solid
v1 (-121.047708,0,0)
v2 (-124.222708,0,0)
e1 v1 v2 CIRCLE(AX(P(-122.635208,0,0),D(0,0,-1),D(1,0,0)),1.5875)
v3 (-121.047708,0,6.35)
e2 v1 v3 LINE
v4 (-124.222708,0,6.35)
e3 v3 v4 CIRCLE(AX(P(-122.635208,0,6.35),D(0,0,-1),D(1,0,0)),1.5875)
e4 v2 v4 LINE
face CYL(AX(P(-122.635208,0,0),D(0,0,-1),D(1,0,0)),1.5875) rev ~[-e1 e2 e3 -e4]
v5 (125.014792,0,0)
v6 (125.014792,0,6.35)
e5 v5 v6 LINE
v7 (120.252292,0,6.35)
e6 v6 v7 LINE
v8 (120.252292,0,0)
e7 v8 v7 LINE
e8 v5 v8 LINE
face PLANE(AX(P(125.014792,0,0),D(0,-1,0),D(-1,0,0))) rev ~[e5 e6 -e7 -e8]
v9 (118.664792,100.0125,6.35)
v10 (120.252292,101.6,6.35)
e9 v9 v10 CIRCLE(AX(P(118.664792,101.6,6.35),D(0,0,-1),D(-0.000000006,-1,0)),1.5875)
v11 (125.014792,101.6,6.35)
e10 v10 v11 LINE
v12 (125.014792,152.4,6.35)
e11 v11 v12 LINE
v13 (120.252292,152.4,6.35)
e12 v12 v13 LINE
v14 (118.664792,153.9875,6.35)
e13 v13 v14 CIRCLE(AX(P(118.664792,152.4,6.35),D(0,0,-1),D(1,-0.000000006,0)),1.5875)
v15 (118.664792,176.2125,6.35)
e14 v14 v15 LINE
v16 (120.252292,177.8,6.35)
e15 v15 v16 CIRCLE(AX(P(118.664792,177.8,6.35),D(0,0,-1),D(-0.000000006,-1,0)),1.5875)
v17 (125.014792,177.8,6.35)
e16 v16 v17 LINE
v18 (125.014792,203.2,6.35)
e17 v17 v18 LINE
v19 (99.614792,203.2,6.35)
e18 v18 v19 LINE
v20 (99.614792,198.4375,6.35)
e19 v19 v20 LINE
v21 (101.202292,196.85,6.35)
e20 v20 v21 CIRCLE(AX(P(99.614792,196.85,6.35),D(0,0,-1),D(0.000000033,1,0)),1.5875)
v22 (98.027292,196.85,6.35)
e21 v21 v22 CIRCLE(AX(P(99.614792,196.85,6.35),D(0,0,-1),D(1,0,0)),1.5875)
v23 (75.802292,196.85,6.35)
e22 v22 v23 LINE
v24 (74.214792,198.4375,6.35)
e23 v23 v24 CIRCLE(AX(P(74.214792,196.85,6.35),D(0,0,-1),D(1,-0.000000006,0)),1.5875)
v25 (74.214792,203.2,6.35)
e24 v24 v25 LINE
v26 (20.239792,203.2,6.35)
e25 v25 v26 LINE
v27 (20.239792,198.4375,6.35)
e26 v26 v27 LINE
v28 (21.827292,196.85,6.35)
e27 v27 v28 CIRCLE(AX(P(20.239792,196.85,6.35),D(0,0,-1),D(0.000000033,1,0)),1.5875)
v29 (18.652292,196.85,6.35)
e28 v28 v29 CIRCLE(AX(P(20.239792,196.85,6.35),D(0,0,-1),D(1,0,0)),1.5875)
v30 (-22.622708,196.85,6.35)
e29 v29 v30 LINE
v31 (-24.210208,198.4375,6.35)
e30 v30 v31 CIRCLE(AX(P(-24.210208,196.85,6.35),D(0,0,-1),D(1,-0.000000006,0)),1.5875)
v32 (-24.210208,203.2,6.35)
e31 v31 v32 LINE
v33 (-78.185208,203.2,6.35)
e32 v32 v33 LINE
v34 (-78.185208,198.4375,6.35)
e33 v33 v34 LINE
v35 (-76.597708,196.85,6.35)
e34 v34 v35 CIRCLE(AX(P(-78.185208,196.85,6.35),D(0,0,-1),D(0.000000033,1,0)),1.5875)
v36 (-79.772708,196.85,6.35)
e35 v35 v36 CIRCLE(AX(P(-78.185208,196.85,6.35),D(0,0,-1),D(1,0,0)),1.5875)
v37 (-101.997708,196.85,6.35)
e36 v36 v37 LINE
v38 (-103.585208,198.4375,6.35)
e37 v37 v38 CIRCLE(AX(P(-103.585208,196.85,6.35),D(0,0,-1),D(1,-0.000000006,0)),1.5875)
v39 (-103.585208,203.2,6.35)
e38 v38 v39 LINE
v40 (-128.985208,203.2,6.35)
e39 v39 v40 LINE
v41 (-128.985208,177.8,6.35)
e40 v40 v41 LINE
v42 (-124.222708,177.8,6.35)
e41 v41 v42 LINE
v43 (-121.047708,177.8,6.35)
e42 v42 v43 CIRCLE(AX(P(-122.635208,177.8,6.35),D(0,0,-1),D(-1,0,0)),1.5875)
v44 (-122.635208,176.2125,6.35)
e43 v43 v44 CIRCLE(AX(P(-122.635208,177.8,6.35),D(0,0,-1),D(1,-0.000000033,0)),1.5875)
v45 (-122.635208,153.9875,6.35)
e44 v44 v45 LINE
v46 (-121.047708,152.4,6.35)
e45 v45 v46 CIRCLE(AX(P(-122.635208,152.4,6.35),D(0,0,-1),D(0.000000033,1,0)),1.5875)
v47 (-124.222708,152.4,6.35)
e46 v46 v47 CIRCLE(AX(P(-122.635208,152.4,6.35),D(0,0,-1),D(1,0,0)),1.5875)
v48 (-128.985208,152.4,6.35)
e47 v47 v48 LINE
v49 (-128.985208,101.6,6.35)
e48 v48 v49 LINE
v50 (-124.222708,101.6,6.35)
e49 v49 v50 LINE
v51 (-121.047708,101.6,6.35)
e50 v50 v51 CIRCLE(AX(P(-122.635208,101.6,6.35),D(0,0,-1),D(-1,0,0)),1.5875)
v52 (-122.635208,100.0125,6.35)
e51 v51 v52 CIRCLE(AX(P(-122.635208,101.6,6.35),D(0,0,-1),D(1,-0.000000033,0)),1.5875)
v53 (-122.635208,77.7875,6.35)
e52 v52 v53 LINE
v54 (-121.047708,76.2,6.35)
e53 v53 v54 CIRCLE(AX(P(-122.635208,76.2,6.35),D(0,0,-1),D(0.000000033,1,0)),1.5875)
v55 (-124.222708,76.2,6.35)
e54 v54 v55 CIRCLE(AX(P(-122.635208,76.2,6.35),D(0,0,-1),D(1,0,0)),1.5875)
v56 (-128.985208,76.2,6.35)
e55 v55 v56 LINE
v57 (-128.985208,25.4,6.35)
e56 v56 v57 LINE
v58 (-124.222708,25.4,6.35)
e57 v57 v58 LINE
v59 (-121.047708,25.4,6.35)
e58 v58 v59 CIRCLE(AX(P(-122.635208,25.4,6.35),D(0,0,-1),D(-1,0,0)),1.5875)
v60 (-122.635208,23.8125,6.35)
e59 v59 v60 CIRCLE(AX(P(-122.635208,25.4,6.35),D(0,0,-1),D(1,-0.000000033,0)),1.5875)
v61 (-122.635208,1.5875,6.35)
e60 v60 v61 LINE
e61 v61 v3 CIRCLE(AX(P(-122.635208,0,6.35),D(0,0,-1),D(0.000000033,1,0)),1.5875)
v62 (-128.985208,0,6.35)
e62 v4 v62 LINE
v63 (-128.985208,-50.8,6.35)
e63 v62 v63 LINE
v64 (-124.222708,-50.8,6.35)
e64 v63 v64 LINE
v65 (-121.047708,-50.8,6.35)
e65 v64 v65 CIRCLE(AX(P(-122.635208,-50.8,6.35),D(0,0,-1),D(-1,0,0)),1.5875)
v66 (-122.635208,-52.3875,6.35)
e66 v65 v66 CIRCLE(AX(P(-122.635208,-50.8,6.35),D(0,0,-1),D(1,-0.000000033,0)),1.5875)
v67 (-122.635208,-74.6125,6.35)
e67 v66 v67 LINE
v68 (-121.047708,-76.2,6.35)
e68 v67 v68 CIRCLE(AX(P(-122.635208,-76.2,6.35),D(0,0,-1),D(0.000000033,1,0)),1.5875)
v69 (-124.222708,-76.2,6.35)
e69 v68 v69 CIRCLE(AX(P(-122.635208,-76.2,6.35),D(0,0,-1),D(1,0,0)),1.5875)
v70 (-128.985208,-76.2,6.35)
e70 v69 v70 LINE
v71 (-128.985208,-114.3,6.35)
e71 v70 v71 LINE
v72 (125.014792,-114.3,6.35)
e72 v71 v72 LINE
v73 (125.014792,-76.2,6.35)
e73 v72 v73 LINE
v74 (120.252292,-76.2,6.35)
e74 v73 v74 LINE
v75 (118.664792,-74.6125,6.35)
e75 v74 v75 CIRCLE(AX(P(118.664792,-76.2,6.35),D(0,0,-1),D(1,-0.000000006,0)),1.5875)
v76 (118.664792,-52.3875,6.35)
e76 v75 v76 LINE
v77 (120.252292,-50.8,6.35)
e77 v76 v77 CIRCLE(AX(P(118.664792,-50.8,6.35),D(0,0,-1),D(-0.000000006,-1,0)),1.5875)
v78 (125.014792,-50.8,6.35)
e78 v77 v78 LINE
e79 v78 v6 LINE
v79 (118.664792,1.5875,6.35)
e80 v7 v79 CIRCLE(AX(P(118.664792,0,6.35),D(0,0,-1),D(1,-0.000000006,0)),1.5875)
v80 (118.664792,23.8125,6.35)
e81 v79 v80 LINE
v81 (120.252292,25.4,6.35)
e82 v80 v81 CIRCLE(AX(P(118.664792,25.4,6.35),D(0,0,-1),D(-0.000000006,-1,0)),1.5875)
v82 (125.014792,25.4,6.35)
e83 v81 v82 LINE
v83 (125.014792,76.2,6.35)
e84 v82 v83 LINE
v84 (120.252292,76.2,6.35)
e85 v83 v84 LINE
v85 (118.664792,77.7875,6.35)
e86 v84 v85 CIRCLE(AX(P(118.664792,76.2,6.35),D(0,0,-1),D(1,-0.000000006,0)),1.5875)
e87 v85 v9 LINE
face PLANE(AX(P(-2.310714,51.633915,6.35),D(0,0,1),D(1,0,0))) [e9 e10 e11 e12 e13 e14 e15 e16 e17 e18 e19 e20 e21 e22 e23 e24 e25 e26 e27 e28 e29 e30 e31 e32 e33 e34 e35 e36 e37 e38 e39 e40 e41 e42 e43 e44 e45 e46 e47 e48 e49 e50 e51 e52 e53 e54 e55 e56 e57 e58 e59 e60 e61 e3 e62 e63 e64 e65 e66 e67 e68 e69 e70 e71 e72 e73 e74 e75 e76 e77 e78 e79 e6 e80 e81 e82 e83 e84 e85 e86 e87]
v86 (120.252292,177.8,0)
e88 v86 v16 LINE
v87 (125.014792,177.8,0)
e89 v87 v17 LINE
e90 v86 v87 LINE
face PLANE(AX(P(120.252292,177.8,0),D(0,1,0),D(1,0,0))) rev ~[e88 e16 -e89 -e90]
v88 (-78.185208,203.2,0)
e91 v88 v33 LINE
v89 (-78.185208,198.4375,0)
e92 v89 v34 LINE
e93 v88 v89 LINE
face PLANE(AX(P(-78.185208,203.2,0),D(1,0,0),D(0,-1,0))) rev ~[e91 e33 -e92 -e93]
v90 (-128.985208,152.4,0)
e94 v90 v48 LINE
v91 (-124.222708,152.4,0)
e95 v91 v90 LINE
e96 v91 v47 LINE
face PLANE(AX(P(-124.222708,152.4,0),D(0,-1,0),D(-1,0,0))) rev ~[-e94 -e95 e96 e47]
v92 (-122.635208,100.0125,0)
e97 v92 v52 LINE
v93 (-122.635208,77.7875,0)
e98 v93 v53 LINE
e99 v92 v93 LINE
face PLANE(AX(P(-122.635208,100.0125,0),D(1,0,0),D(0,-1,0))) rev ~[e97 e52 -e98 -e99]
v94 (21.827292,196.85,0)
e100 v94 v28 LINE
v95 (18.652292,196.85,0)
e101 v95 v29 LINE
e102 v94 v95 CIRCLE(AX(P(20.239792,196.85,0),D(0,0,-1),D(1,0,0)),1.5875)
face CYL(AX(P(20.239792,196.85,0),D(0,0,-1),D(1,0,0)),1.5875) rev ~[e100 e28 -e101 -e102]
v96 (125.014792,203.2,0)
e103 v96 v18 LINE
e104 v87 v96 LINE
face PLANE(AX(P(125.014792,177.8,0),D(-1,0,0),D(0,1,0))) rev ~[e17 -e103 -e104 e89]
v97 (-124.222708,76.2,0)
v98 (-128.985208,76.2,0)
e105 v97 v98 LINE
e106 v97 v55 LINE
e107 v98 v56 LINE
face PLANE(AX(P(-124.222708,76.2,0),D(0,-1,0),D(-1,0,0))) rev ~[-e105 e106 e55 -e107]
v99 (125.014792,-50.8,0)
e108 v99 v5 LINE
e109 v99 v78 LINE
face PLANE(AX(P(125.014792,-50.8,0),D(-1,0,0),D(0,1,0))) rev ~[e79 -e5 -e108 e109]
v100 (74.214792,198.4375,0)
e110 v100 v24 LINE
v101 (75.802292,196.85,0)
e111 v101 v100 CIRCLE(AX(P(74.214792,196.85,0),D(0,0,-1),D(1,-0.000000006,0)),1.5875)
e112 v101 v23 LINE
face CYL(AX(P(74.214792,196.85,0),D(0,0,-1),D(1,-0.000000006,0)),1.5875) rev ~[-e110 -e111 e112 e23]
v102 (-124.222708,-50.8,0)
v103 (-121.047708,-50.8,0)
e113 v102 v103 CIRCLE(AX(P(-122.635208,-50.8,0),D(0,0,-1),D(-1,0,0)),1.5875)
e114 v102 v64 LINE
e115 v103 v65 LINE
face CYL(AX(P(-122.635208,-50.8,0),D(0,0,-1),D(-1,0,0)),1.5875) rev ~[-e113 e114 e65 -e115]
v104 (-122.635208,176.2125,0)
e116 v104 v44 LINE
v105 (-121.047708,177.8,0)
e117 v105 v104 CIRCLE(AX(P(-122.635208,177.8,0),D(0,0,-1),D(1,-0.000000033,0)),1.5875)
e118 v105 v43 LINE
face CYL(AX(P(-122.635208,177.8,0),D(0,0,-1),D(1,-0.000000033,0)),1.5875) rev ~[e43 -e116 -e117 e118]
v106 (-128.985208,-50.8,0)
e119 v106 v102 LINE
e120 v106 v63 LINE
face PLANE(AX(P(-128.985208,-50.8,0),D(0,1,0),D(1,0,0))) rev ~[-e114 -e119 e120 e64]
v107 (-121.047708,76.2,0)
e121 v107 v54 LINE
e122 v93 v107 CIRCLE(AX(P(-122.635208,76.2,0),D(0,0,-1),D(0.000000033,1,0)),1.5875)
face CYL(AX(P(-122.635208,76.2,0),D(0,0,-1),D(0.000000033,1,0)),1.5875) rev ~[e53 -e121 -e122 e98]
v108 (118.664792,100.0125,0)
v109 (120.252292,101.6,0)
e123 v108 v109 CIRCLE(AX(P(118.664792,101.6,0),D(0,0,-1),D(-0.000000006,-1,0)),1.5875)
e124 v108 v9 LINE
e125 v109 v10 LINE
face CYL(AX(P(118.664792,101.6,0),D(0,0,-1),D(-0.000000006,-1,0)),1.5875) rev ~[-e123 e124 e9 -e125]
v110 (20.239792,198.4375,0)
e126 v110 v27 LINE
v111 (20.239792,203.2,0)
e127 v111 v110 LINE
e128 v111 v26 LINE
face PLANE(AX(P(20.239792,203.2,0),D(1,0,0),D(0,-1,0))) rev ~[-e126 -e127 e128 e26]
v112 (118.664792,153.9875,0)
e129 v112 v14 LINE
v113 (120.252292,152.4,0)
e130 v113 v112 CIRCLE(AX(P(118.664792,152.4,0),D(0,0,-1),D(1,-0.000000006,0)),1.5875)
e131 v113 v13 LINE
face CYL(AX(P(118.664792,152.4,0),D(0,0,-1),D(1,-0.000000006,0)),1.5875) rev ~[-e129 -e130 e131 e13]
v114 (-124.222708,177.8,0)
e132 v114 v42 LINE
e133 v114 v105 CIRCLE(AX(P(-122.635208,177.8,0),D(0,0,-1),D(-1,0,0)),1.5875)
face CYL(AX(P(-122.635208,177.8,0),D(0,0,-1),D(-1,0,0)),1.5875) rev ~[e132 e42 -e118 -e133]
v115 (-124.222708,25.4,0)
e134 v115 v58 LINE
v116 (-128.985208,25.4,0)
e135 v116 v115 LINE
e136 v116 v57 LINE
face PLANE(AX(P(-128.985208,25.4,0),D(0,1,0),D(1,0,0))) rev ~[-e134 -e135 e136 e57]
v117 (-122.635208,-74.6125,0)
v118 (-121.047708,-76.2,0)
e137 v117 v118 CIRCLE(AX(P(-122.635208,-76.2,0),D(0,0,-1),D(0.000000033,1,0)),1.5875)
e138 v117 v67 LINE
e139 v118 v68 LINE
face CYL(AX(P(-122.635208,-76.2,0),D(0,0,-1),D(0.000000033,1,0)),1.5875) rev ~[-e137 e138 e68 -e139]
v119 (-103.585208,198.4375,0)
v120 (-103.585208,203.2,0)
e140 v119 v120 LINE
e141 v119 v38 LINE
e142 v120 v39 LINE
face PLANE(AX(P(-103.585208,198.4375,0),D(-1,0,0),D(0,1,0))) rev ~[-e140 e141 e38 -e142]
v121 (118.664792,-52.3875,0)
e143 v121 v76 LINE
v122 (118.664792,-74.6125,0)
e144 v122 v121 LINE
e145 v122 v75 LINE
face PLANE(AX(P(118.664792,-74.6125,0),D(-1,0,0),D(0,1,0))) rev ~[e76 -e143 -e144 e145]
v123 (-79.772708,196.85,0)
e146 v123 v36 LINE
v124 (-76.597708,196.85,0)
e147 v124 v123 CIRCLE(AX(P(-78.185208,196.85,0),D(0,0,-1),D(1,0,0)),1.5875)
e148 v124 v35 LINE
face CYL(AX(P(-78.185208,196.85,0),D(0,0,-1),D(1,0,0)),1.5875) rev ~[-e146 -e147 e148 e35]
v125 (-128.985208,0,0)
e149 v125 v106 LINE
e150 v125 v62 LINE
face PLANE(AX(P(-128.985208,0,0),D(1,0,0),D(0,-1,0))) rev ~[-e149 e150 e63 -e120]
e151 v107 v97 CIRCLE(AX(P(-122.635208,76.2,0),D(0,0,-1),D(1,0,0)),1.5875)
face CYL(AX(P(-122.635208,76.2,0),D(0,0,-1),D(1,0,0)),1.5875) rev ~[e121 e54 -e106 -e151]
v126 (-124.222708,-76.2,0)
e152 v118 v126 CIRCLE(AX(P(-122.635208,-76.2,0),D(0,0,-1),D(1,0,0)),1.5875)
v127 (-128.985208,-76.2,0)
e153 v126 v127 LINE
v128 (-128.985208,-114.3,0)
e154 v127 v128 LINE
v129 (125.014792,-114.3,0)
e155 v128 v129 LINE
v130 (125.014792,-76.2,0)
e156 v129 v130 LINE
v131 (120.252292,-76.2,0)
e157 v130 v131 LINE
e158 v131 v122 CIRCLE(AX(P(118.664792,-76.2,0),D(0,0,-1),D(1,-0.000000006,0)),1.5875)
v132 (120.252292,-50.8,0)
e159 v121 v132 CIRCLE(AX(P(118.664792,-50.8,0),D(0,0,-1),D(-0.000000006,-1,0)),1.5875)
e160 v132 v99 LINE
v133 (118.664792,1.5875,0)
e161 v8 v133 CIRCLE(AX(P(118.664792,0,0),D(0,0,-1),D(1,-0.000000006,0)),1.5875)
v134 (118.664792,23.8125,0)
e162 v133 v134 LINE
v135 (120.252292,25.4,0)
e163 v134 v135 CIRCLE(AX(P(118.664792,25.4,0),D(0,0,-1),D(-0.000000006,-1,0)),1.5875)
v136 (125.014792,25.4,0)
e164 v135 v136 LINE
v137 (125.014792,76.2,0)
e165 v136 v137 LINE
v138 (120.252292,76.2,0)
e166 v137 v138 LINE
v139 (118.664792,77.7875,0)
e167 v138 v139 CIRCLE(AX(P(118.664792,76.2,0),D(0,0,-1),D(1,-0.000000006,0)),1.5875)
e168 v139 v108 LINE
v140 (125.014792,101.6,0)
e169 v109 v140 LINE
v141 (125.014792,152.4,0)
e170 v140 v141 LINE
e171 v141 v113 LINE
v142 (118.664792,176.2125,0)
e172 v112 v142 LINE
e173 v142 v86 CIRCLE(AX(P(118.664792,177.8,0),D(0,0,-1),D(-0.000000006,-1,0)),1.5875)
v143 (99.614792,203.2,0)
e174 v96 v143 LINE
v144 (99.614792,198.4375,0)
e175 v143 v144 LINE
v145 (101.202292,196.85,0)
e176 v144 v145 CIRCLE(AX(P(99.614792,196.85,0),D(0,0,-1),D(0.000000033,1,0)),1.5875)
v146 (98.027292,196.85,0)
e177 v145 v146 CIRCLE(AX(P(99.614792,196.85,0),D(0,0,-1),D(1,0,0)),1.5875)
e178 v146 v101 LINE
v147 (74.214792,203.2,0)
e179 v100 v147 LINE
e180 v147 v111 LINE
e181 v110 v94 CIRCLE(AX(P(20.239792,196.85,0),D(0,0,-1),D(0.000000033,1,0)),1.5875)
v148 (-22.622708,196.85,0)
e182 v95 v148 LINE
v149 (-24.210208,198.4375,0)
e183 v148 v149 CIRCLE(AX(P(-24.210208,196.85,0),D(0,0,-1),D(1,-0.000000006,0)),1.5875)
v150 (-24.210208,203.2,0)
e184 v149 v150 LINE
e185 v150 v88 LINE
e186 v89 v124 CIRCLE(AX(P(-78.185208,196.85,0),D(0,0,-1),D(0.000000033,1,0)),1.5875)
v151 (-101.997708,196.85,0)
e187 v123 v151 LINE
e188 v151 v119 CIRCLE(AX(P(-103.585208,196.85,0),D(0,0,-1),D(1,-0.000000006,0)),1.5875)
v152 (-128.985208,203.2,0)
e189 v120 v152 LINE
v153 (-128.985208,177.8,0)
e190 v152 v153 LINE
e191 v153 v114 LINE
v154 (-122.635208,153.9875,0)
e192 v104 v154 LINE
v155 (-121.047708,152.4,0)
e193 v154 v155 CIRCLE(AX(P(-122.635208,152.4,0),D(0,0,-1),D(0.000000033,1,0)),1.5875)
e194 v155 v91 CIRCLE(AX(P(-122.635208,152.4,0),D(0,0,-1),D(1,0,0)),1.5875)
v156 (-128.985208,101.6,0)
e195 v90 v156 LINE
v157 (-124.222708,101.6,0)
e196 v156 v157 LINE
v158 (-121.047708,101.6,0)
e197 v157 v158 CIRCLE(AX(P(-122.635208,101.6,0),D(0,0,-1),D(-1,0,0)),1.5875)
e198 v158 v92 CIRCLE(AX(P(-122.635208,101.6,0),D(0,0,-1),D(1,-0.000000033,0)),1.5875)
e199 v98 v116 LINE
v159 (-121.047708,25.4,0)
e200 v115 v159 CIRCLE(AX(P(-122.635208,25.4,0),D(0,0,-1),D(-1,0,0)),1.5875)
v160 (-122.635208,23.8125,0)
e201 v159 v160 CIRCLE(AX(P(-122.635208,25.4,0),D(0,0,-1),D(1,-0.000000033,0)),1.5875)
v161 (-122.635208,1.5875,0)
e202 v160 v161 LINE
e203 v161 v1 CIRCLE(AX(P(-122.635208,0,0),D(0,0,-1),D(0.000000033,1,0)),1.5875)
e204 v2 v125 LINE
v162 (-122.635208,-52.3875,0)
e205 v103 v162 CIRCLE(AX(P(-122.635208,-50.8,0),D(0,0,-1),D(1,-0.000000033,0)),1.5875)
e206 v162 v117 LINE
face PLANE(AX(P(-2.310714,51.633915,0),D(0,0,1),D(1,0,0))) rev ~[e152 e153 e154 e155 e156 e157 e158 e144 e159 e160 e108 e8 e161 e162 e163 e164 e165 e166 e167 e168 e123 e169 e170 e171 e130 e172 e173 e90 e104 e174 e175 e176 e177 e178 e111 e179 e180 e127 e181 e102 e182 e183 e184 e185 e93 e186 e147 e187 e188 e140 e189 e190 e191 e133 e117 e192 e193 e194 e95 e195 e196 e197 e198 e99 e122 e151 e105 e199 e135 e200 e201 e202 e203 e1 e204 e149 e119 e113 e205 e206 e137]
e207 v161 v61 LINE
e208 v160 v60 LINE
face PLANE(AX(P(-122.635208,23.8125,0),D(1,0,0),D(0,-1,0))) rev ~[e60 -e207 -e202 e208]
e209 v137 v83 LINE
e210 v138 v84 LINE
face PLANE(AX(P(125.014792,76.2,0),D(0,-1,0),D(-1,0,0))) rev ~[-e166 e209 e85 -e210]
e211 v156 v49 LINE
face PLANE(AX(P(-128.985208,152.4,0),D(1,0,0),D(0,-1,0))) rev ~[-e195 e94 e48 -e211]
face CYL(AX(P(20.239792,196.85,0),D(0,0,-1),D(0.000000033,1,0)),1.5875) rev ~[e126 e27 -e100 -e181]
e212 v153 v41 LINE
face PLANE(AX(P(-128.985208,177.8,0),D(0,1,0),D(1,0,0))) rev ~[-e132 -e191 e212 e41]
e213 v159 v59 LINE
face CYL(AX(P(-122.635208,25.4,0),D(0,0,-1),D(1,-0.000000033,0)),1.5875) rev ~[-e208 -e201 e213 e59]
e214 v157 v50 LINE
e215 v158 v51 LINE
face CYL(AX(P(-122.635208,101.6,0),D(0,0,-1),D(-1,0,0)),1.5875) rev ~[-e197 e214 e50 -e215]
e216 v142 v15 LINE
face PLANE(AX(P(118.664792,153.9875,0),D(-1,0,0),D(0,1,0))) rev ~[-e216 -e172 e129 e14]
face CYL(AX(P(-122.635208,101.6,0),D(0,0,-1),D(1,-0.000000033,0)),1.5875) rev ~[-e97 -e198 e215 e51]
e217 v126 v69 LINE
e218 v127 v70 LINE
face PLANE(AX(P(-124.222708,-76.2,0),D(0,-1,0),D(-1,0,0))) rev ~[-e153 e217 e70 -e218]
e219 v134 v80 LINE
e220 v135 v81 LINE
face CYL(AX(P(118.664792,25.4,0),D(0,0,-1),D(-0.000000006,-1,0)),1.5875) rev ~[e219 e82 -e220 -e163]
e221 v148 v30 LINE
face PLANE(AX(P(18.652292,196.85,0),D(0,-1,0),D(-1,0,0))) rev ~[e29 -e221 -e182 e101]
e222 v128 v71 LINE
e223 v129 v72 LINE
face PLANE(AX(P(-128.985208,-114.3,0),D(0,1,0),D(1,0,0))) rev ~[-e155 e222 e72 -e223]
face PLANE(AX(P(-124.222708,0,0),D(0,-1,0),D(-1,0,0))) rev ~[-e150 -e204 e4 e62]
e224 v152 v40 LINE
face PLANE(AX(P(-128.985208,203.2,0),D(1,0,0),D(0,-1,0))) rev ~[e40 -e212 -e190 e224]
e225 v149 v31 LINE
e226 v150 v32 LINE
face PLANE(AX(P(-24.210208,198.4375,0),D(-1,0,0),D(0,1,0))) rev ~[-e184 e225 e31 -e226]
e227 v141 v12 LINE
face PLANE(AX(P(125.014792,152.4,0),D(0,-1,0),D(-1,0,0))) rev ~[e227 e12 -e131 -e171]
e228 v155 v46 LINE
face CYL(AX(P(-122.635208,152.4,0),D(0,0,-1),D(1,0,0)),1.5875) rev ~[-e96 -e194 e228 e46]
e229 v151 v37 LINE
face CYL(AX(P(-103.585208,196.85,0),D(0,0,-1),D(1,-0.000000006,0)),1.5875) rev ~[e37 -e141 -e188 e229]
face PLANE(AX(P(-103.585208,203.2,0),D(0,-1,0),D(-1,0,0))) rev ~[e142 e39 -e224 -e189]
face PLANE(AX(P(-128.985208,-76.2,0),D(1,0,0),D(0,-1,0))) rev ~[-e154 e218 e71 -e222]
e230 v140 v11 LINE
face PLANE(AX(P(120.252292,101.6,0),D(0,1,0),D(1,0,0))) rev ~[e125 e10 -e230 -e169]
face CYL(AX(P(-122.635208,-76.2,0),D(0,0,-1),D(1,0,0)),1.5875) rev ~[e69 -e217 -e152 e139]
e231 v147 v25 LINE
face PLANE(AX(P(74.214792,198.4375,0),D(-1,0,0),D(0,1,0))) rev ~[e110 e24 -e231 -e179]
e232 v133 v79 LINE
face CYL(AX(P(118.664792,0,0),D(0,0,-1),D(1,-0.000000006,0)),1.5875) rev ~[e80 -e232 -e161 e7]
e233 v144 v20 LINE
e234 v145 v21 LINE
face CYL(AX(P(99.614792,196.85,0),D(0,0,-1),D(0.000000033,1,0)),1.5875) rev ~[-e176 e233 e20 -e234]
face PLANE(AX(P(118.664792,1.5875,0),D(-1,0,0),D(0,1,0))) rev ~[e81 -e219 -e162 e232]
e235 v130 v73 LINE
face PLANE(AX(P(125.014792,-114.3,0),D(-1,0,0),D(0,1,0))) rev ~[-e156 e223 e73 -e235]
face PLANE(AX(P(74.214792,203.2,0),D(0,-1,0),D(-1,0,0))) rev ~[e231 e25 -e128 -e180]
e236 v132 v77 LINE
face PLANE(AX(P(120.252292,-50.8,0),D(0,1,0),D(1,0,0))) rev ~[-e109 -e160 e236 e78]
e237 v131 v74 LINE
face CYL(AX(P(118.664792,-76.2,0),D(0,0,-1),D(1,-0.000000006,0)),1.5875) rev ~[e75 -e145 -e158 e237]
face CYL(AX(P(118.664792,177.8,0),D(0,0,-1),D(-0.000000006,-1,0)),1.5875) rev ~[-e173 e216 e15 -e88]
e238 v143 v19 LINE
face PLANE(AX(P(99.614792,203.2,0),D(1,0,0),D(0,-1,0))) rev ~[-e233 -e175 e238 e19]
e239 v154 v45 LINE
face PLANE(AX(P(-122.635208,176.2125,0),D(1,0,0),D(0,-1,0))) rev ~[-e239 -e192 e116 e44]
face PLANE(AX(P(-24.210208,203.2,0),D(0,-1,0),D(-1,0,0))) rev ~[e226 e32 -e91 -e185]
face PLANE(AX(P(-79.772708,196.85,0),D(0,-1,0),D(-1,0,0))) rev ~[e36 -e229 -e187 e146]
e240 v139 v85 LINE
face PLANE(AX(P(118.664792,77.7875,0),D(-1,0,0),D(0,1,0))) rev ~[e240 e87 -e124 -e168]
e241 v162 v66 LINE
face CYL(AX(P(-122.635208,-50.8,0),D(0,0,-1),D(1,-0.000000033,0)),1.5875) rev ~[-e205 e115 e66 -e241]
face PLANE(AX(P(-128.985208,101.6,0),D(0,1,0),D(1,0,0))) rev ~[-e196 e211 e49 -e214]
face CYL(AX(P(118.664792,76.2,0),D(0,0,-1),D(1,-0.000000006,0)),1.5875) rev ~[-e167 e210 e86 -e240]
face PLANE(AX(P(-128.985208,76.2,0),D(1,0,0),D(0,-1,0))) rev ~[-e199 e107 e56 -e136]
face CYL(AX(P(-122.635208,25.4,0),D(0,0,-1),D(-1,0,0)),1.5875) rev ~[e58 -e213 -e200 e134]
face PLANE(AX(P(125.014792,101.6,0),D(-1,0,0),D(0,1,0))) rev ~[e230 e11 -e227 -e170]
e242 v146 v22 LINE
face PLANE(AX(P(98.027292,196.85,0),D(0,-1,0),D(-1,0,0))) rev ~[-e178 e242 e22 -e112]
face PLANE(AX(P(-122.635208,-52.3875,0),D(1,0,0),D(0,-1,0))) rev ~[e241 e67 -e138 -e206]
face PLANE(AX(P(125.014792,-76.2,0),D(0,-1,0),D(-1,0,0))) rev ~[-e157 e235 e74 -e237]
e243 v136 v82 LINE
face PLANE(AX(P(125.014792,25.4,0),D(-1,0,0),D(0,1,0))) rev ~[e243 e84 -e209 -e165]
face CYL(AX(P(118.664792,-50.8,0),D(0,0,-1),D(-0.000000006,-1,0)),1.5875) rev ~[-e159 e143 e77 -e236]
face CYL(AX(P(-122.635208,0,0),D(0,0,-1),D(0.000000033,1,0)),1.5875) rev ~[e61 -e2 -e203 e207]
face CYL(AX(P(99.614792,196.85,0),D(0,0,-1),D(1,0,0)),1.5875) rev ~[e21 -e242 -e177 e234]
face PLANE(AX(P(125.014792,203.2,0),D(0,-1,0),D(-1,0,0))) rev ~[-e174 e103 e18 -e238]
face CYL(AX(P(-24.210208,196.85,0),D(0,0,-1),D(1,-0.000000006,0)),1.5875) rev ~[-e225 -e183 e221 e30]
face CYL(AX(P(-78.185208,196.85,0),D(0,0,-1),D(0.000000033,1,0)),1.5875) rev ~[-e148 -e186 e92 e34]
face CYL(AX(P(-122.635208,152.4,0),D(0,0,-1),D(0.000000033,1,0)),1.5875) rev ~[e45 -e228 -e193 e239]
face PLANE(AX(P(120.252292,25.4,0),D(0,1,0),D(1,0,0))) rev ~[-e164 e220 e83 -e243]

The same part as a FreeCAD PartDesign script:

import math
import FreeCAD as App
import Part
import Sketcher
Q = App.Units.Quantity

doc = App.newDocument("Part")
body = doc.addObject("PartDesign::Body", "Body")

# Sketch on XY plane
sketch1 = body.newObject("Sketcher::SketchObject", "Sketch")
sketch1.AttachmentSupport = (doc.getObject("XY_Plane"), [""])
sketch1.MapMode = "FlatFace"
sketch1.addGeometry(Part.LineSegment(App.Vector(-103.6, 203.2, 0), App.Vector(-129, 203.2, 0)), False)
sketch1.addGeometry(Part.LineSegment(App.Vector(-129, 203.2, 0), App.Vector(-129, 177.8, 0)), False)
sketch1.addGeometry(Part.LineSegment(App.Vector(-129, 177.8, 0), App.Vector(-124.2, 177.8, 0)), False)
sketch1.addGeometry(Part.ArcOfCircle(Part.Circle(App.Vector(-122.6, 177.8, 0), App.Vector(0, 0, 1), 1.6), math.radians(0), math.radians(180)), False)
sketch1.addGeometry(Part.ArcOfCircle(Part.Circle(App.Vector(-122.6, 177.8, 0), App.Vector(0, 0, 1), 1.6), math.radians(-90), math.radians(0)), False)
sketch1.addGeometry(Part.LineSegment(App.Vector(-122.6, 176.2, 0), App.Vector(-122.6, 154, 0)), False)
sketch1.addGeometry(Part.ArcOfCircle(Part.Circle(App.Vector(-122.6, 152.4, 0), App.Vector(0, 0, 1), 1.6), math.radians(0), math.radians(90)), False)
sketch1.addGeometry(Part.ArcOfCircle(Part.Circle(App.Vector(-122.6, 152.4, 0), App.Vector(0, 0, 1), 1.6), math.radians(180), math.radians(360)), False)
sketch1.addGeometry(Part.LineSegment(App.Vector(-124.2, 152.4, 0), App.Vector(-129, 152.4, 0)), False)
sketch1.addGeometry(Part.LineSegment(App.Vector(-129, 152.4, 0), App.Vector(-129, 101.6, 0)), False)
sketch1.addGeometry(Part.LineSegment(App.Vector(-129, 101.6, 0), App.Vector(-124.2, 101.6, 0)), False)
sketch1.addGeometry(Part.ArcOfCircle(Part.Circle(App.Vector(-122.6, 101.6, 0), App.Vector(0, 0, 1), 1.6), math.radians(0), math.radians(180)), False)
sketch1.addGeometry(Part.ArcOfCircle(Part.Circle(App.Vector(-122.6, 101.6, 0), App.Vector(0, 0, 1), 1.6), math.radians(-90), math.radians(0)), False)
sketch1.addGeometry(Part.LineSegment(App.Vector(-122.6, 100, 0), App.Vector(-122.6, 77.8, 0)), False)
sketch1.addGeometry(Part.ArcOfCircle(Part.Circle(App.Vector(-122.6, 76.2, 0), App.Vector(0, 0, 1), 1.6), math.radians(0), math.radians(90)), False)
sketch1.addGeometry(Part.ArcOfCircle(Part.Circle(App.Vector(-122.6, 76.2, 0), App.Vector(0, 0, 1), 1.6), math.radians(180), math.radians(360)), False)
sketch1.addGeometry(Part.LineSegment(App.Vector(-124.2, 76.2, 0), App.Vector(-129, 76.2, 0)), False)
sketch1.addGeometry(Part.LineSegment(App.Vector(-129, 76.2, 0), App.Vector(-129, 25.4, 0)), False)
sketch1.addGeometry(Part.LineSegment(App.Vector(-129, 25.4, 0), App.Vector(-124.2, 25.4, 0)), False)
sketch1.addGeometry(Part.ArcOfCircle(Part.Circle(App.Vector(-122.6, 25.4, 0), App.Vector(0, 0, 1), 1.6), math.radians(0), math.radians(180)), False)
sketch1.addGeometry(Part.ArcOfCircle(Part.Circle(App.Vector(-122.6, 25.4, 0), App.Vector(0, 0, 1), 1.6), math.radians(-90), math.radians(0)), False)
sketch1.addGeometry(Part.LineSegment(App.Vector(-122.6, 23.8, 0), App.Vector(-122.6, 1.6, 0)), False)
sketch1.addGeometry(Part.ArcOfCircle(Part.Circle(App.Vector(-122.6, 0, 0), App.Vector(0, 0, 1), 1.6), math.radians(0), math.radians(90)), False)
sketch1.addGeometry(Part.ArcOfCircle(Part.Circle(App.Vector(-122.6, 0, 0), App.Vector(0, 0, 1), 1.6), math.radians(180), math.radians(360)), False)
sketch1.addGeometry(Part.LineSegment(App.Vector(-124.2, 0, 0), App.Vector(-129, 0, 0)), False)
sketch1.addGeometry(Part.LineSegment(App.Vector(-129, 0, 0), App.Vector(-129, -50.8, 0)), False)
sketch1.addGeometry(Part.LineSegment(App.Vector(-129, -50.8, 0), App.Vector(-124.2, -50.8, 0)), False)
sketch1.addGeometry(Part.ArcOfCircle(Part.Circle(App.Vector(-122.6, -50.8, 0), App.Vector(0, 0, 1), 1.6), math.radians(0), math.radians(180)), False)
sketch1.addGeometry(Part.ArcOfCircle(Part.Circle(App.Vector(-122.6, -50.8, 0), App.Vector(0, 0, 1), 1.6), math.radians(-90), math.radians(0)), False)
sketch1.addGeometry(Part.LineSegment(App.Vector(-122.6, -52.4, 0), App.Vector(-122.6, -74.6, 0)), False)
sketch1.addGeometry(Part.ArcOfCircle(Part.Circle(App.Vector(-122.6, -76.2, 0), App.Vector(0, 0, 1), 1.6), math.radians(0), math.radians(90)), False)
sketch1.addGeometry(Part.ArcOfCircle(Part.Circle(App.Vector(-122.6, -76.2, 0), App.Vector(0, 0, 1), 1.6), math.radians(180), math.radians(360)), False)
sketch1.addGeometry(Part.LineSegment(App.Vector(-124.2, -76.2, 0), App.Vector(-129, -76.2, 0)), False)
sketch1.addGeometry(Part.LineSegment(App.Vector(-129, -76.2, 0), App.Vector(-129, -114.3, 0)), False)
sketch1.addGeometry(Part.LineSegment(App.Vector(-129, -114.3, 0), App.Vector(125, -114.3, 0)), False)
sketch1.addGeometry(Part.LineSegment(App.Vector(125, -114.3, 0), App.Vector(125, -76.2, 0)), False)
sketch1.addGeometry(Part.LineSegment(App.Vector(125, -76.2, 0), App.Vector(120.3, -76.2, 0)), False)
sketch1.addGeometry(Part.ArcOfCircle(Part.Circle(App.Vector(118.7, -76.2, 0), App.Vector(0, 0, 1), 1.6), math.radians(90), math.radians(360)), False)
sketch1.addGeometry(Part.LineSegment(App.Vector(118.7, -74.6, 0), App.Vector(118.7, -52.4, 0)), False)
sketch1.addGeometry(Part.ArcOfCircle(Part.Circle(App.Vector(118.7, -50.8, 0), App.Vector(0, 0, 1), 1.6), math.radians(0), math.radians(270)), False)
sketch1.addGeometry(Part.LineSegment(App.Vector(120.3, -50.8, 0), App.Vector(125, -50.8, 0)), False)
sketch1.addGeometry(Part.LineSegment(App.Vector(125, -50.8, 0), App.Vector(125, 0, 0)), False)
sketch1.addGeometry(Part.LineSegment(App.Vector(125, 0, 0), App.Vector(120.3, 0, 0)), False)
sketch1.addGeometry(Part.ArcOfCircle(Part.Circle(App.Vector(118.7, 0, 0), App.Vector(0, 0, 1), 1.6), math.radians(90), math.radians(360)), False)
sketch1.addGeometry(Part.LineSegment(App.Vector(118.7, 1.6, 0), App.Vector(118.7, 23.8, 0)), False)
sketch1.addGeometry(Part.ArcOfCircle(Part.Circle(App.Vector(118.7, 25.4, 0), App.Vector(0, 0, 1), 1.6), math.radians(0), math.radians(270)), False)
sketch1.addGeometry(Part.LineSegment(App.Vector(120.3, 25.4, 0), App.Vector(125, 25.4, 0)), False)
sketch1.addGeometry(Part.LineSegment(App.Vector(125, 25.4, 0), App.Vector(125, 76.2, 0)), False)
sketch1.addGeometry(Part.LineSegment(App.Vector(125, 76.2, 0), App.Vector(120.3, 76.2, 0)), False)
sketch1.addGeometry(Part.ArcOfCircle(Part.Circle(App.Vector(118.7, 76.2, 0), App.Vector(0, 0, 1), 1.6), math.radians(90), math.radians(360)), False)
sketch1.addGeometry(Part.LineSegment(App.Vector(118.7, 77.8, 0), App.Vector(118.7, 100, 0)), False)
sketch1.addGeometry(Part.ArcOfCircle(Part.Circle(App.Vector(118.7, 101.6, 0), App.Vector(0, 0, 1), 1.6), math.radians(0), math.radians(270)), False)
sketch1.addGeometry(Part.LineSegment(App.Vector(120.3, 101.6, 0), App.Vector(125, 101.6, 0)), False)
sketch1.addGeometry(Part.LineSegment(App.Vector(125, 101.6, 0), App.Vector(125, 152.4, 0)), False)
sketch1.addGeometry(Part.LineSegment(App.Vector(125, 152.4, 0), App.Vector(120.3, 152.4, 0)), False)
sketch1.addGeometry(Part.ArcOfCircle(Part.Circle(App.Vector(118.7, 152.4, 0), App.Vector(0, 0, 1), 1.6), math.radians(90), math.radians(360)), False)
sketch1.addGeometry(Part.LineSegment(App.Vector(118.7, 154, 0), App.Vector(118.7, 176.2, 0)), False)
sketch1.addGeometry(Part.ArcOfCircle(Part.Circle(App.Vector(118.7, 177.8, 0), App.Vector(0, 0, 1), 1.6), math.radians(0), math.radians(270)), False)
sketch1.addGeometry(Part.LineSegment(App.Vector(120.3, 177.8, 0), App.Vector(125, 177.8, 0)), False)
sketch1.addGeometry(Part.LineSegment(App.Vector(125, 177.8, 0), App.Vector(125, 203.2, 0)), False)
sketch1.addGeometry(Part.LineSegment(App.Vector(125, 203.2, 0), App.Vector(99.6, 203.2, 0)), False)
sketch1.addGeometry(Part.LineSegment(App.Vector(99.6, 203.2, 0), App.Vector(99.6, 198.4, 0)), False)
sketch1.addGeometry(Part.ArcOfCircle(Part.Circle(App.Vector(99.6, 196.8, 0), App.Vector(0, 0, 1), 1.6), math.radians(0), math.radians(90)), False)
sketch1.addGeometry(Part.ArcOfCircle(Part.Circle(App.Vector(99.6, 196.8, 0), App.Vector(0, 0, 1), 1.6), math.radians(180), math.radians(360)), False)
sketch1.addGeometry(Part.LineSegment(App.Vector(98, 196.8, 0), App.Vector(75.8, 196.8, 0)), False)
sketch1.addGeometry(Part.ArcOfCircle(Part.Circle(App.Vector(74.2, 196.9, 0), App.Vector(0, 0, 1), 1.6), math.radians(90), math.radians(360)), False)
sketch1.addGeometry(Part.LineSegment(App.Vector(74.2, 198.4, 0), App.Vector(74.2, 203.2, 0)), False)
sketch1.addGeometry(Part.LineSegment(App.Vector(74.2, 203.2, 0), App.Vector(20.2, 203.2, 0)), False)
sketch1.addGeometry(Part.LineSegment(App.Vector(20.2, 203.2, 0), App.Vector(20.2, 198.4, 0)), False)
sketch1.addGeometry(Part.ArcOfCircle(Part.Circle(App.Vector(20.2, 196.8, 0), App.Vector(0, 0, 1), 1.6), math.radians(0), math.radians(90)), False)
sketch1.addGeometry(Part.ArcOfCircle(Part.Circle(App.Vector(20.2, 196.8, 0), App.Vector(0, 0, 1), 1.6), math.radians(180), math.radians(360)), False)
sketch1.addGeometry(Part.LineSegment(App.Vector(18.7, 196.8, 0), App.Vector(-22.6, 196.8, 0)), False)
sketch1.addGeometry(Part.ArcOfCircle(Part.Circle(App.Vector(-24.2, 196.9, 0), App.Vector(0, 0, 1), 1.6), math.radians(90), math.radians(360)), False)
sketch1.addGeometry(Part.LineSegment(App.Vector(-24.2, 198.4, 0), App.Vector(-24.2, 203.2, 0)), False)
sketch1.addGeometry(Part.LineSegment(App.Vector(-24.2, 203.2, 0), App.Vector(-78.2, 203.2, 0)), False)
sketch1.addGeometry(Part.LineSegment(App.Vector(-78.2, 203.2, 0), App.Vector(-78.2, 198.4, 0)), False)
sketch1.addGeometry(Part.ArcOfCircle(Part.Circle(App.Vector(-78.2, 196.8, 0), App.Vector(0, 0, 1), 1.6), math.radians(0), math.radians(90)), False)
sketch1.addGeometry(Part.ArcOfCircle(Part.Circle(App.Vector(-78.2, 196.8, 0), App.Vector(0, 0, 1), 1.6), math.radians(180), math.radians(360)), False)
sketch1.addGeometry(Part.LineSegment(App.Vector(-79.8, 196.8, 0), App.Vector(-102, 196.8, 0)), False)
sketch1.addGeometry(Part.ArcOfCircle(Part.Circle(App.Vector(-103.6, 196.9, 0), App.Vector(0, 0, 1), 1.6), math.radians(90), math.radians(360)), False)
sketch1.addGeometry(Part.LineSegment(App.Vector(-103.6, 198.4, 0), App.Vector(-103.6, 203.2, 0)), False)
sketch1.addConstraint(Sketcher.Constraint("Coincident", 0, 2, 1, 1))
sketch1.addConstraint(Sketcher.Constraint("Coincident", 1, 2, 2, 1))
sketch1.addConstraint(Sketcher.Constraint("Coincident", 2, 2, 3, 2))
sketch1.addConstraint(Sketcher.Constraint("Tangent", 3, 1, 4, 2))
sketch1.addConstraint(Sketcher.Constraint("Coincident", 4, 1, 5, 1))
sketch1.addConstraint(Sketcher.Constraint("Coincident", 5, 2, 6, 2))
sketch1.addConstraint(Sketcher.Constraint("Tangent", 6, 1, 7, 2))
sketch1.addConstraint(Sketcher.Constraint("Coincident", 7, 1, 8, 1))
sketch1.addConstraint(Sketcher.Constraint("Coincident", 8, 2, 9, 1))
sketch1.addConstraint(Sketcher.Constraint("Coincident", 9, 2, 10, 1))
sketch1.addConstraint(Sketcher.Constraint("Coincident", 10, 2, 11, 2))
sketch1.addConstraint(Sketcher.Constraint("Tangent", 11, 1, 12, 2))
sketch1.addConstraint(Sketcher.Constraint("Coincident", 12, 1, 13, 1))
sketch1.addConstraint(Sketcher.Constraint("Coincident", 13, 2, 14, 2))
sketch1.addConstraint(Sketcher.Constraint("Tangent", 14, 1, 15, 2))
sketch1.addConstraint(Sketcher.Constraint("Coincident", 15, 1, 16, 1))
sketch1.addConstraint(Sketcher.Constraint("Coincident", 16, 2, 17, 1))
sketch1.addConstraint(Sketcher.Constraint("Coincident", 17, 2, 18, 1))
sketch1.addConstraint(Sketcher.Constraint("Coincident", 18, 2, 19, 2))
sketch1.addConstraint(Sketcher.Constraint("Tangent", 19, 1, 20, 2))
sketch1.addConstraint(Sketcher.Constraint("Coincident", 20, 1, 21, 1))
sketch1.addConstraint(Sketcher.Constraint("Coincident", 21, 2, 22, 2))
sketch1.addConstraint(Sketcher.Constraint("Tangent", 22, 1, 23, 2))
sketch1.addConstraint(Sketcher.Constraint("Coincident", 23, 1, 24, 1))
sketch1.addConstraint(Sketcher.Constraint("Coincident", 24, 2, 25, 1))
sketch1.addConstraint(Sketcher.Constraint("Coincident", 25, 2, 26, 1))
sketch1.addConstraint(Sketcher.Constraint("Coincident", 26, 2, 27, 2))
sketch1.addConstraint(Sketcher.Constraint("Tangent", 27, 1, 28, 2))
sketch1.addConstraint(Sketcher.Constraint("Coincident", 28, 1, 29, 1))
sketch1.addConstraint(Sketcher.Constraint("Coincident", 29, 2, 30, 2))
sketch1.addConstraint(Sketcher.Constraint("Tangent", 30, 1, 31, 2))
sketch1.addConstraint(Sketcher.Constraint("Coincident", 31, 1, 32, 1))
sketch1.addConstraint(Sketcher.Constraint("Coincident", 32, 2, 33, 1))
sketch1.addConstraint(Sketcher.Constraint("Coincident", 33, 2, 34, 1))
sketch1.addConstraint(Sketcher.Constraint("Coincident", 34, 2, 35, 1))
sketch1.addConstraint(Sketcher.Constraint("Coincident", 35, 2, 36, 1))
sketch1.addConstraint(Sketcher.Constraint("Coincident", 36, 2, 37, 2))
sketch1.addConstraint(Sketcher.Constraint("Coincident", 37, 1, 38, 1))
sketch1.addConstraint(Sketcher.Constraint("Coincident", 38, 2, 39, 2))
sketch1.addConstraint(Sketcher.Constraint("Coincident", 39, 1, 40, 1))
sketch1.addConstraint(Sketcher.Constraint("Coincident", 40, 2, 41, 1))
sketch1.addConstraint(Sketcher.Constraint("Coincident", 41, 2, 42, 1))
sketch1.addConstraint(Sketcher.Constraint("Coincident", 42, 2, 43, 2))
sketch1.addConstraint(Sketcher.Constraint("Coincident", 43, 1, 44, 1))
sketch1.addConstraint(Sketcher.Constraint("Coincident", 44, 2, 45, 2))
sketch1.addConstraint(Sketcher.Constraint("Coincident", 45, 1, 46, 1))
sketch1.addConstraint(Sketcher.Constraint("Coincident", 46, 2, 47, 1))
sketch1.addConstraint(Sketcher.Constraint("Coincident", 47, 2, 48, 1))
sketch1.addConstraint(Sketcher.Constraint("Coincident", 48, 2, 49, 2))
sketch1.addConstraint(Sketcher.Constraint("Coincident", 49, 1, 50, 1))
sketch1.addConstraint(Sketcher.Constraint("Coincident", 50, 2, 51, 2))
sketch1.addConstraint(Sketcher.Constraint("Coincident", 51, 1, 52, 1))
sketch1.addConstraint(Sketcher.Constraint("Coincident", 52, 2, 53, 1))
sketch1.addConstraint(Sketcher.Constraint("Coincident", 53, 2, 54, 1))
sketch1.addConstraint(Sketcher.Constraint("Coincident", 54, 2, 55, 2))
sketch1.addConstraint(Sketcher.Constraint("Coincident", 55, 1, 56, 1))
sketch1.addConstraint(Sketcher.Constraint("Coincident", 56, 2, 57, 2))
sketch1.addConstraint(Sketcher.Constraint("Coincident", 57, 1, 58, 1))
sketch1.addConstraint(Sketcher.Constraint("Coincident", 58, 2, 59, 1))
sketch1.addConstraint(Sketcher.Constraint("Coincident", 59, 2, 60, 1))
sketch1.addConstraint(Sketcher.Constraint("Coincident", 60, 2, 61, 1))
sketch1.addConstraint(Sketcher.Constraint("Coincident", 61, 2, 62, 2))
sketch1.addConstraint(Sketcher.Constraint("Tangent", 62, 1, 63, 2))
sketch1.addConstraint(Sketcher.Constraint("Coincident", 63, 1, 64, 1))
sketch1.addConstraint(Sketcher.Constraint("Coincident", 64, 2, 65, 2))
sketch1.addConstraint(Sketcher.Constraint("Coincident", 65, 1, 66, 1))
sketch1.addConstraint(Sketcher.Constraint("Coincident", 66, 2, 67, 1))
sketch1.addConstraint(Sketcher.Constraint("Coincident", 67, 2, 68, 1))
sketch1.addConstraint(Sketcher.Constraint("Coincident", 68, 2, 69, 2))
sketch1.addConstraint(Sketcher.Constraint("Tangent", 69, 1, 70, 2))
sketch1.addConstraint(Sketcher.Constraint("Coincident", 70, 1, 71, 1))
sketch1.addConstraint(Sketcher.Constraint("Coincident", 71, 2, 72, 2))
sketch1.addConstraint(Sketcher.Constraint("Coincident", 72, 1, 73, 1))
sketch1.addConstraint(Sketcher.Constraint("Coincident", 73, 2, 74, 1))
sketch1.addConstraint(Sketcher.Constraint("Coincident", 74, 2, 75, 1))
sketch1.addConstraint(Sketcher.Constraint("Coincident", 75, 2, 76, 2))
sketch1.addConstraint(Sketcher.Constraint("Tangent", 76, 1, 77, 2))
sketch1.addConstraint(Sketcher.Constraint("Coincident", 77, 1, 78, 1))
sketch1.addConstraint(Sketcher.Constraint("Coincident", 78, 2, 79, 2))
sketch1.addConstraint(Sketcher.Constraint("Coincident", 79, 1, 80, 1))
sketch1.addConstraint(Sketcher.Constraint("Coincident", 80, 2, 0, 1))
sketch1.addConstraint(Sketcher.Constraint("Horizontal", 0))
sketch1.addConstraint(Sketcher.Constraint("Vertical", 1))
sketch1.addConstraint(Sketcher.Constraint("Horizontal", 2))
sketch1.addConstraint(Sketcher.Constraint("Vertical", 5))
sketch1.addConstraint(Sketcher.Constraint("Horizontal", 8))
sketch1.addConstraint(Sketcher.Constraint("Vertical", 9))
sketch1.addConstraint(Sketcher.Constraint("Horizontal", 10))
sketch1.addConstraint(Sketcher.Constraint("Vertical", 13))
sketch1.addConstraint(Sketcher.Constraint("Horizontal", 16))
sketch1.addConstraint(Sketcher.Constraint("Vertical", 17))
sketch1.addConstraint(Sketcher.Constraint("Horizontal", 18))
sketch1.addConstraint(Sketcher.Constraint("Vertical", 21))
sketch1.addConstraint(Sketcher.Constraint("Horizontal", 24))
sketch1.addConstraint(Sketcher.Constraint("Vertical", 25))
sketch1.addConstraint(Sketcher.Constraint("Horizontal", 26))
sketch1.addConstraint(Sketcher.Constraint("Vertical", 29))
sketch1.addConstraint(Sketcher.Constraint("Horizontal", 32))
sketch1.addConstraint(Sketcher.Constraint("Vertical", 33))
sketch1.addConstraint(Sketcher.Constraint("Horizontal", 34))
sketch1.addConstraint(Sketcher.Constraint("Vertical", 35))
sketch1.addConstraint(Sketcher.Constraint("Horizontal", 36))
sketch1.addConstraint(Sketcher.Constraint("Vertical", 38))
sketch1.addConstraint(Sketcher.Constraint("Horizontal", 40))
sketch1.addConstraint(Sketcher.Constraint("Vertical", 41))
sketch1.addConstraint(Sketcher.Constraint("Horizontal", 42))
sketch1.addConstraint(Sketcher.Constraint("Vertical", 44))
sketch1.addConstraint(Sketcher.Constraint("Horizontal", 46))
sketch1.addConstraint(Sketcher.Constraint("Vertical", 47))
sketch1.addConstraint(Sketcher.Constraint("Horizontal", 48))
sketch1.addConstraint(Sketcher.Constraint("Vertical", 50))
sketch1.addConstraint(Sketcher.Constraint("Horizontal", 52))
sketch1.addConstraint(Sketcher.Constraint("Vertical", 53))
sketch1.addConstraint(Sketcher.Constraint("Horizontal", 54))
sketch1.addConstraint(Sketcher.Constraint("Vertical", 56))
sketch1.addConstraint(Sketcher.Constraint("Horizontal", 58))
sketch1.addConstraint(Sketcher.Constraint("Vertical", 59))
sketch1.addConstraint(Sketcher.Constraint("Horizontal", 60))
sketch1.addConstraint(Sketcher.Constraint("Vertical", 61))
sketch1.addConstraint(Sketcher.Constraint("Horizontal", 64))
sketch1.addConstraint(Sketcher.Constraint("Vertical", 66))
sketch1.addConstraint(Sketcher.Constraint("Horizontal", 67))
sketch1.addConstraint(Sketcher.Constraint("Vertical", 68))
sketch1.addConstraint(Sketcher.Constraint("Horizontal", 71))
sketch1.addConstraint(Sketcher.Constraint("Vertical", 73))
sketch1.addConstraint(Sketcher.Constraint("Horizontal", 74))
sketch1.addConstraint(Sketcher.Constraint("Vertical", 75))
sketch1.addConstraint(Sketcher.Constraint("Horizontal", 78))
sketch1.addConstraint(Sketcher.Constraint("Vertical", 80))
sketch1.addConstraint(Sketcher.Constraint("Equal", 3, 4))
sketch1.addConstraint(Sketcher.Constraint("Equal", 4, 6))
sketch1.addConstraint(Sketcher.Constraint("Equal", 6, 7))
sketch1.addConstraint(Sketcher.Constraint("Equal", 7, 11))
sketch1.addConstraint(Sketcher.Constraint("Equal", 11, 12))
sketch1.addConstraint(Sketcher.Constraint("Equal", 12, 14))
sketch1.addConstraint(Sketcher.Constraint("Equal", 14, 15))
sketch1.addConstraint(Sketcher.Constraint("Equal", 15, 19))
sketch1.addConstraint(Sketcher.Constraint("Equal", 19, 20))
sketch1.addConstraint(Sketcher.Constraint("Equal", 20, 22))
sketch1.addConstraint(Sketcher.Constraint("Equal", 22, 23))
sketch1.addConstraint(Sketcher.Constraint("Equal", 23, 27))
sketch1.addConstraint(Sketcher.Constraint("Equal", 27, 28))
sketch1.addConstraint(Sketcher.Constraint("Equal", 28, 30))
sketch1.addConstraint(Sketcher.Constraint("Equal", 30, 31))
sketch1.addConstraint(Sketcher.Constraint("Equal", 31, 37))
sketch1.addConstraint(Sketcher.Constraint("Equal", 37, 39))
sketch1.addConstraint(Sketcher.Constraint("Equal", 39, 43))
sketch1.addConstraint(Sketcher.Constraint("Equal", 43, 45))
sketch1.addConstraint(Sketcher.Constraint("Equal", 45, 49))
sketch1.addConstraint(Sketcher.Constraint("Equal", 49, 51))
sketch1.addConstraint(Sketcher.Constraint("Equal", 51, 55))
sketch1.addConstraint(Sketcher.Constraint("Equal", 55, 57))
sketch1.addConstraint(Sketcher.Constraint("Equal", 57, 62))
sketch1.addConstraint(Sketcher.Constraint("Equal", 62, 63))
sketch1.addConstraint(Sketcher.Constraint("Equal", 63, 65))
sketch1.addConstraint(Sketcher.Constraint("Equal", 65, 69))
sketch1.addConstraint(Sketcher.Constraint("Equal", 69, 70))
sketch1.addConstraint(Sketcher.Constraint("Equal", 70, 72))
sketch1.addConstraint(Sketcher.Constraint("Equal", 72, 76))
sketch1.addConstraint(Sketcher.Constraint("Equal", 76, 77))
sketch1.addConstraint(Sketcher.Constraint("Equal", 77, 79))
sketch1.addConstraint(Sketcher.Constraint("Symmetric", 14, 3, 30, 3, -1))
sketch1.addConstraint(Sketcher.Constraint("Symmetric", 37, 3, 49, 3, -1))
sketch1.addConstraint(Sketcher.Constraint("Symmetric", 16, 2, 32, 2, -1))
sketch1.addConstraint(Sketcher.Constraint("Symmetric", 35, 2, 47, 2, -1))
sketch1.addConstraint(Sketcher.Constraint("PointOnObject", 22, 3, -1))
sketch1.addConstraint(Sketcher.Constraint("PointOnObject", 43, 3, -1))
sketch1.addConstraint(Sketcher.Constraint("PointOnObject", 22, 1, -1))
sketch1.addConstraint(Sketcher.Constraint("PointOnObject", 23, 1, -1))
sketch1.addConstraint(Sketcher.Constraint("PointOnObject", 41, 2, -1))
sketch1.addConstraint(Sketcher.Constraint("Horizontal", 31, 3, 37, 3))
sketch1.addConstraint(Sketcher.Constraint("Horizontal", 28, 3, 39, 3))
sketch1.addConstraint(Sketcher.Constraint("Horizontal", 20, 3, 45, 3))
sketch1.addConstraint(Sketcher.Constraint("Horizontal", 12, 3, 51, 3))
sketch1.addConstraint(Sketcher.Constraint("Horizontal", 7, 3, 55, 3))
sketch1.addConstraint(Sketcher.Constraint("Horizontal", 4, 3, 57, 3))
sketch1.addConstraint(Sketcher.Constraint("Horizontal", 63, 3, 65, 3))
sketch1.addConstraint(Sketcher.Constraint("Horizontal", 65, 3, 69, 3))
sketch1.addConstraint(Sketcher.Constraint("Horizontal", 70, 3, 72, 3))
sketch1.addConstraint(Sketcher.Constraint("Horizontal", 72, 3, 76, 3))
sketch1.addConstraint(Sketcher.Constraint("Horizontal", 77, 3, 79, 3))
sketch1.addConstraint(Sketcher.Constraint("Horizontal", 57, 3, 1, 2))
sketch1.addConstraint(Sketcher.Constraint("Horizontal", 2, 2, 3, 1))
sketch1.addConstraint(Sketcher.Constraint("Horizontal", 55, 3, 6, 1))
sketch1.addConstraint(Sketcher.Constraint("Horizontal", 6, 1, 7, 1))
sketch1.addConstraint(Sketcher.Constraint("Horizontal", 51, 3, 9, 2))
sketch1.addConstraint(Sketcher.Constraint("Horizontal", 10, 2, 11, 1))
sketch1.addConstraint(Sketcher.Constraint("Horizontal", 49, 3, 14, 1))
sketch1.addConstraint(Sketcher.Constraint("Horizontal", 14, 1, 15, 1))
sketch1.addConstraint(Sketcher.Constraint("Horizontal", 45, 3, 17, 2))
sketch1.addConstraint(Sketcher.Constraint("Horizontal", 18, 2, 19, 1))
sketch1.addConstraint(Sketcher.Constraint("Horizontal", 39, 3, 25, 2))
sketch1.addConstraint(Sketcher.Constraint("Horizontal", 26, 2, 27, 1))
sketch1.addConstraint(Sketcher.Constraint("Horizontal", 37, 3, 30, 1))
sketch1.addConstraint(Sketcher.Constraint("Horizontal", 32, 2, 35, 2))
sketch1.addConstraint(Sketcher.Constraint("Horizontal", 27, 1, 39, 1))
sketch1.addConstraint(Sketcher.Constraint("Horizontal", 19, 1, 45, 1))
sketch1.addConstraint(Sketcher.Constraint("Horizontal", 11, 1, 51, 1))
sketch1.addConstraint(Sketcher.Constraint("Horizontal", 8, 2, 53, 2))
sketch1.addConstraint(Sketcher.Constraint("Horizontal", 3, 1, 57, 1))
sketch1.addConstraint(Sketcher.Constraint("Horizontal", 0, 2, 59, 2))
sketch1.addConstraint(Sketcher.Constraint("Horizontal", 79, 3, 62, 1))
sketch1.addConstraint(Sketcher.Constraint("Horizontal", 62, 1, 63, 1))
sketch1.addConstraint(Sketcher.Constraint("Horizontal", 60, 2, 66, 2))
sketch1.addConstraint(Sketcher.Constraint("Horizontal", 64, 2, 69, 1))
sketch1.addConstraint(Sketcher.Constraint("Horizontal", 69, 1, 70, 1))
sketch1.addConstraint(Sketcher.Constraint("Horizontal", 67, 2, 73, 2))
sketch1.addConstraint(Sketcher.Constraint("Horizontal", 71, 2, 76, 1))
sketch1.addConstraint(Sketcher.Constraint("Horizontal", 76, 1, 77, 1))
sketch1.addConstraint(Sketcher.Constraint("Vertical", 4, 3, 6, 3))
sketch1.addConstraint(Sketcher.Constraint("Vertical", 7, 3, 11, 3))
sketch1.addConstraint(Sketcher.Constraint("Vertical", 12, 3, 14, 3))
sketch1.addConstraint(Sketcher.Constraint("Vertical", 15, 3, 19, 3))
sketch1.addConstraint(Sketcher.Constraint("Vertical", 20, 3, 22, 3))
sketch1.addConstraint(Sketcher.Constraint("Vertical", 23, 3, 27, 3))
sketch1.addConstraint(Sketcher.Constraint("Vertical", 37, 3, 39, 3))
sketch1.addConstraint(Sketcher.Constraint("Vertical", 39, 3, 43, 3))
sketch1.addConstraint(Sketcher.Constraint("Vertical", 43, 3, 45, 3))
sketch1.addConstraint(Sketcher.Constraint("Vertical", 49, 3, 51, 3))
sketch1.addConstraint(Sketcher.Constraint("Vertical", 51, 3, 55, 3))
sketch1.addConstraint(Sketcher.Constraint("Vertical", 55, 3, 57, 3))
sketch1.addConstraint(Sketcher.Constraint("Vertical", 31, 3, 4, 1))
sketch1.addConstraint(Sketcher.Constraint("Vertical", 1, 2, 8, 2))
sketch1.addConstraint(Sketcher.Constraint("Vertical", 5, 2, 12, 1))
sketch1.addConstraint(Sketcher.Constraint("Vertical", 9, 2, 16, 2))
sketch1.addConstraint(Sketcher.Constraint("Vertical", 13, 2, 20, 1))
sketch1.addConstraint(Sketcher.Constraint("Vertical", 17, 2, 24, 2))
sketch1.addConstraint(Sketcher.Constraint("Vertical", 21, 2, 28, 1))
sketch1.addConstraint(Sketcher.Constraint("Vertical", 57, 3, 37, 1))
sketch1.addConstraint(Sketcher.Constraint("Vertical", 35, 2, 40, 2))
sketch1.addConstraint(Sketcher.Constraint("Vertical", 38, 2, 43, 1))
sketch1.addConstraint(Sketcher.Constraint("Vertical", 44, 2, 49, 1))
sketch1.addConstraint(Sketcher.Constraint("Vertical", 47, 2, 52, 2))
sketch1.addConstraint(Sketcher.Constraint("Vertical", 50, 2, 55, 1))
sketch1.addConstraint(Sketcher.Constraint("Vertical", 53, 2, 58, 2))
sketch1.addConstraint(Sketcher.Constraint("Vertical", 63, 3, 60, 2))
sketch1.addConstraint(Sketcher.Constraint("Vertical", 70, 3, 67, 2))
sketch1.addConstraint(Sketcher.Constraint("Vertical", 77, 3, 74, 2))
sketch1.addConstraint(Sketcher.Constraint("Equal", 32, 36))
sketch1.addConstraint(Sketcher.Constraint("Equal", 0, 60))
sketch1.addConstraint(Sketcher.Constraint("Equal", 67, 74))
sketch1.addConstraint(Sketcher.Constraint("Equal", 64, 78))
sketch1.addConstraint(Sketcher.Constraint("Equal", 60, 1))
sketch1.addConstraint(Sketcher.Constraint("Equal", 78, 5))
sketch1.addConstraint(Sketcher.Constraint("Equal", 5, 13))
sketch1.addConstraint(Sketcher.Constraint("Equal", 9, 17))
sketch1.addConstraint(Sketcher.Constraint("Equal", 13, 21))
sketch1.addConstraint(Sketcher.Constraint("Equal", 17, 25))
sketch1.addConstraint(Sketcher.Constraint("Equal", 58, 61))
sketch1.addConstraint(Sketcher.Constraint("DistanceX", 0, 2, 0, 1, Q("1 in")))
sketch1.addConstraint(Sketcher.Constraint("DistanceX", 34, 1, 34, 2, Q("10 in")))
sketch1.addConstraint(Sketcher.Constraint("DistanceY", 9, 2, 9, 1, Q("2 in")))
sketch1.addConstraint(Sketcher.Constraint("DistanceY", 33, 2, 33, 1, Q("1.5 in")))
sketch1.addConstraint(Sketcher.Constraint("DistanceY", -1, 1, 3, 3, Q("7 in")))
sketch1.addConstraint(Sketcher.Constraint("Radius", 3, Q("0.0625 in")))
sketch1.addConstraint(Sketcher.Constraint("DistanceX", 2, 1, 2, 2, Q("0.1875 in")))
sketch1.addConstraint(Sketcher.Constraint("DistanceX", 67, 2, 67, 1, Q("2.125 in")))
sketch1.addConstraint(Sketcher.Constraint("DistanceX", 71, 2, 71, 1, Q("1.625 in")))
sketch1.addConstraint(Sketcher.Constraint("DistanceX", 3, 3, -1, 1, 122.635208))
sketch1.addConstraint(Sketcher.Constraint("DistanceX", -1, 1, 69, 3, 20.239792))
sketch1.addConstraint(Sketcher.Constraint("DistanceX", 76, 3, -1, 1, 78.185208))
pad1 = body.newObject("PartDesign::Pad", "Pad")
pad1.Profile = sketch1
pad1.Length = Q("0.25 in")

doc.recompute()
